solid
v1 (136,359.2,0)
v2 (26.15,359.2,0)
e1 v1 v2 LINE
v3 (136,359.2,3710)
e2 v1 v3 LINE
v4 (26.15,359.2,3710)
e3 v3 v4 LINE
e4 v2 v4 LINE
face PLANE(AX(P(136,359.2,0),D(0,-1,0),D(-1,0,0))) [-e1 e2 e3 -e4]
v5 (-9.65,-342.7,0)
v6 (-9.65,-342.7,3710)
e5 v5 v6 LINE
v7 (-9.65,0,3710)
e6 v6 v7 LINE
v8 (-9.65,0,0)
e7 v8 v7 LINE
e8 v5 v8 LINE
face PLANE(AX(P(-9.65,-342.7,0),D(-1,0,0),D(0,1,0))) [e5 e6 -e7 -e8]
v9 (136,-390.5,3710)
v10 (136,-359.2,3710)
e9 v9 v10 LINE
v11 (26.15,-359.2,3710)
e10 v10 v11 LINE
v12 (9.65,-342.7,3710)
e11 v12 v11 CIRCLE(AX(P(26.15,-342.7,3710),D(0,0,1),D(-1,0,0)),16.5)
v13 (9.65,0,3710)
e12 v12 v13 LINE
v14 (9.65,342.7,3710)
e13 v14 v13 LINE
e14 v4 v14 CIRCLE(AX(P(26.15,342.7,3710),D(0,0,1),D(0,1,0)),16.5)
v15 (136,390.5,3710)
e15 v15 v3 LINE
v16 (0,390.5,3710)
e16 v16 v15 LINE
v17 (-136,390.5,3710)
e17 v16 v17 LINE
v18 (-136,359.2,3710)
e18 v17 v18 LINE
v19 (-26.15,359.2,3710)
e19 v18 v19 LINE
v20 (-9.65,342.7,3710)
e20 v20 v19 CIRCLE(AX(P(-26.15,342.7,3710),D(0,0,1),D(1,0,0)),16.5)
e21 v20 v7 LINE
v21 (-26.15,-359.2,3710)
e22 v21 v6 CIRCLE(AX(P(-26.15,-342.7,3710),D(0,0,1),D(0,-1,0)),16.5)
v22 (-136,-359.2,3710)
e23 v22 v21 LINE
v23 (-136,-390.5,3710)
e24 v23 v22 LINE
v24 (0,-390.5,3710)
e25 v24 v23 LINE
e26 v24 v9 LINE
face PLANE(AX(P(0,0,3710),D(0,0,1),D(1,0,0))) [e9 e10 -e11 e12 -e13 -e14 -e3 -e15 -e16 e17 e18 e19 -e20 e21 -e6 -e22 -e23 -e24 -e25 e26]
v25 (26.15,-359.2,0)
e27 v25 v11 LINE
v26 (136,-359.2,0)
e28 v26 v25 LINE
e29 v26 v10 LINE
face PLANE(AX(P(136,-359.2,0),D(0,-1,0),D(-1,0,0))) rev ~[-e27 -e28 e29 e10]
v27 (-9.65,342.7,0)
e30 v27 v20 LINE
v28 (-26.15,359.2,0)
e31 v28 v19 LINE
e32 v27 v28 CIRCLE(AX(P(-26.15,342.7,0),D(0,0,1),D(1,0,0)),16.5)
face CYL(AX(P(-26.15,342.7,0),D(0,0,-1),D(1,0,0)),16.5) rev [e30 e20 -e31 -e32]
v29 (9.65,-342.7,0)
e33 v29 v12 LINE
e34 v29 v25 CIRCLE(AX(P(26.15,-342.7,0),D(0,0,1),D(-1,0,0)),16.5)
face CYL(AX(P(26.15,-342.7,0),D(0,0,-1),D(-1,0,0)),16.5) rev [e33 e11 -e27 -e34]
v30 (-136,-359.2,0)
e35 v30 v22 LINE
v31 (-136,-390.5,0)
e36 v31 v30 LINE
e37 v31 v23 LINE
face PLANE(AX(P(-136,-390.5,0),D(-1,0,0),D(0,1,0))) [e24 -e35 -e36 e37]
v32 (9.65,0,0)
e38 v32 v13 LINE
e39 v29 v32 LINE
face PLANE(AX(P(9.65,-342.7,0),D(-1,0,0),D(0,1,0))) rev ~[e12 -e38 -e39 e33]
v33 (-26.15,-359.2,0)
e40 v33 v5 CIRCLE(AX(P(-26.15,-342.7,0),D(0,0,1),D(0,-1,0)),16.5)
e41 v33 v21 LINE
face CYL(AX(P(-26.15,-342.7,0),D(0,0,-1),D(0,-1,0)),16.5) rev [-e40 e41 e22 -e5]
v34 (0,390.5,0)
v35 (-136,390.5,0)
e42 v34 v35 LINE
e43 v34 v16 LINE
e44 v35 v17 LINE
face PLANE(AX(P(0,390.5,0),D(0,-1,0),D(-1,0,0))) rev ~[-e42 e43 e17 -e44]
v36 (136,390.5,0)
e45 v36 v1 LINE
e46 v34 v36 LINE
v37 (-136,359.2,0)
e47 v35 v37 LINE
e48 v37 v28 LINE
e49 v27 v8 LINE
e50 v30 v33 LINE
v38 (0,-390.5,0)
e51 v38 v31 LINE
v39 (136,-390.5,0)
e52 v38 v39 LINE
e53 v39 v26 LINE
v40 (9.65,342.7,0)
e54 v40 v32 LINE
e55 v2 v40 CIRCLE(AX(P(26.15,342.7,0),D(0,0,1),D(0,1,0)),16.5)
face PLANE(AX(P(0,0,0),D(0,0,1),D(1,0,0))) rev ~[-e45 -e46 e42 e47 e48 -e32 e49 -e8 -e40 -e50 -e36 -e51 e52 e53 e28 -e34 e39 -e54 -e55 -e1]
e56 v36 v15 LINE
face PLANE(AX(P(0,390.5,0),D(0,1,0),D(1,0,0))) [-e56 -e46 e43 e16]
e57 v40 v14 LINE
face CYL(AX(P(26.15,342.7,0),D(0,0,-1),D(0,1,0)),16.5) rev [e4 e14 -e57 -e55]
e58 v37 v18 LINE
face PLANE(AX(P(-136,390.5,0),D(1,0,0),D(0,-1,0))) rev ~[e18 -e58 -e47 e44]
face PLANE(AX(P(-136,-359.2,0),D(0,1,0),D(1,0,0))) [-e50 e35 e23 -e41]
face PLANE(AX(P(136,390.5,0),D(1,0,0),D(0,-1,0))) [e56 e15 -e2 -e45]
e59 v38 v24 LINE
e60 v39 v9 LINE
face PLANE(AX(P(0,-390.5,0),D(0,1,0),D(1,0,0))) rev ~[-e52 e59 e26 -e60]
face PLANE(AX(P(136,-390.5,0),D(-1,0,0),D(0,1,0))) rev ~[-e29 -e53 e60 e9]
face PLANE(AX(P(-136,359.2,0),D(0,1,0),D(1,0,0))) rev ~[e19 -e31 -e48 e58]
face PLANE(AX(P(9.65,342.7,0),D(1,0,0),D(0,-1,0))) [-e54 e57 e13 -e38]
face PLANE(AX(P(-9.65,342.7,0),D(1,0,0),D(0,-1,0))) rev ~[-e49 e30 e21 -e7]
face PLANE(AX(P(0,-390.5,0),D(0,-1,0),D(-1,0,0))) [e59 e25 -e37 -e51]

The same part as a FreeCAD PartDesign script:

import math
import FreeCAD as App
import Part
import Sketcher
from FreeCAD import Vector
Q = App.Units.Quantity

doc = App.newDocument("Part")
body = doc.addObject("PartDesign::Body", "Body")

sketch1 = body.newObject("Sketcher::SketchObject", "Sketch")
sketch1.AttachmentSupport = (doc.getObject("XY_Plane"), [""])
sketch1.MapMode = "FlatFace"
sketch1.addGeometry(Part.LineSegment(Vector(-136, -359.2, 0), Vector(-136, -390.5, 0)), False)
sketch1.addGeometry(Part.LineSegment(Vector(-136, -390.5, 0), Vector(136, -390.5, 0)), False)
sketch1.addGeometry(Part.LineSegment(Vector(136, -390.5, 0), Vector(136, -359.2, 0)), False)
sketch1.addGeometry(Part.LineSegment(Vector(136, -359.2, 0), Vector(26.15, -359.2, 0)), False)
sketch1.addGeometry(Part.ArcOfCircle(Part.Circle(Vector(26.15, -342.7, 0), Vector(0, 0, 1), 16.5), math.radians(180), math.radians(270)), False)
sketch1.addGeometry(Part.LineSegment(Vector(9.65, -342.7, 0), Vector(9.65, 342.7, 0)), False)
sketch1.addGeometry(Part.ArcOfCircle(Part.Circle(Vector(26.15, 342.7, 0), Vector(0, 0, 1), 16.5), math.radians(90), math.radians(180)), False)
sketch1.addGeometry(Part.LineSegment(Vector(26.15, 359.2, 0), Vector(136, 359.2, 0)), False)
sketch1.addGeometry(Part.LineSegment(Vector(136, 359.2, 0), Vector(136, 390.5, 0)), False)
sketch1.addGeometry(Part.LineSegment(Vector(136, 390.5, 0), Vector(-136, 390.5, 0)), False)
sketch1.addGeometry(Part.LineSegment(Vector(-136, 390.5, 0), Vector(-136, 359.2, 0)), False)
sketch1.addGeometry(Part.LineSegment(Vector(-136, 359.2, 0), Vector(-26.15, 359.2, 0)), False)
sketch1.addGeometry(Part.ArcOfCircle(Part.Circle(Vector(-26.15, 342.7, 0), Vector(0, 0, 1), 16.5), math.radians(0), math.radians(90)), False)
sketch1.addGeometry(Part.LineSegment(Vector(-9.65, 342.7, 0), Vector(-9.65, -342.7, 0)), False)
sketch1.addGeometry(Part.ArcOfCircle(Part.Circle(Vector(-26.15, -342.7, 0), Vector(0, 0, 1), 16.5), math.radians(-90), math.radians(0)), False)
sketch1.addGeometry(Part.LineSegment(Vector(-26.15, -359.2, 0), Vector(-136, -359.2, 0)), False)
sketch1.addConstraint(Sketcher.Constraint("Coincident", 0, 2, 1, 1))
sketch1.addConstraint(Sketcher.Constraint("Coincident", 1, 2, 2, 1))
sketch1.addConstraint(Sketcher.Constraint("Coincident", 2, 2, 3, 1))
sketch1.addConstraint(Sketcher.Constraint("Tangent", 3, 2, 4, 2))
sketch1.addConstraint(Sketcher.Constraint("Tangent", 4, 1, 5, 1))
sketch1.addConstraint(Sketcher.Constraint("Tangent", 5, 2, 6, 2))
sketch1.addConstraint(Sketcher.Constraint("Tangent", 6, 1, 7, 1))
sketch1.addConstraint(Sketcher.Constraint("Coincident", 7, 2, 8, 1))
sketch1.addConstraint(Sketcher.Constraint("Coincident", 8, 2, 9, 1))
sketch1.addConstraint(Sketcher.Constraint("Coincident", 9, 2, 10, 1))
sketch1.addConstraint(Sketcher.Constraint("Coincident", 10, 2, 11, 1))
sketch1.addConstraint(Sketcher.Constraint("Tangent", 11, 2, 12, 2))
sketch1.addConstraint(Sketcher.Constraint("Tangent", 12, 1, 13, 1))
sketch1.addConstraint(Sketcher.Constraint("Tangent", 13, 2, 14, 2))
sketch1.addConstraint(Sketcher.Constraint("Tangent", 14, 1, 15, 1))
sketch1.addConstraint(Sketcher.Constraint("Coincident", 15, 2, 0, 1))
sketch1.addConstraint(Sketcher.Constraint("Vertical", 0))
sketch1.addConstraint(Sketcher.Constraint("Horizontal", 1))
sketch1.addConstraint(Sketcher.Constraint("Vertical", 2))
sketch1.addConstraint(Sketcher.Constraint("Horizontal", 3))
sketch1.addConstraint(Sketcher.Constraint("Vertical", 5))
sketch1.addConstraint(Sketcher.Constraint("Horizontal", 7))
sketch1.addConstraint(Sketcher.Constraint("Vertical", 8))
sketch1.addConstraint(Sketcher.Constraint("Horizontal", 9))
sketch1.addConstraint(Sketcher.Constraint("Vertical", 10))
sketch1.addConstraint(Sketcher.Constraint("Horizontal", 11))
sketch1.addConstraint(Sketcher.Constraint("Vertical", 13))
sketch1.addConstraint(Sketcher.Constraint("Horizontal", 15))
sketch1.addConstraint(Sketcher.Constraint("Equal", 4, 6))
sketch1.addConstraint(Sketcher.Constraint("Equal", 6, 12))
sketch1.addConstraint(Sketcher.Constraint("Equal", 12, 14))
sketch1.addConstraint(Sketcher.Constraint("Symmetric", 4, 3, 12, 3, -1, 1))
sketch1.addConstraint(Sketcher.Constraint("Symmetric", 0, 2, 8, 2, -1, 1))
sketch1.addConstraint(Sketcher.Constraint("Symmetric", 7, 2, 10, 2, -2))
sketch1.addConstraint(Sketcher.Constraint("Symmetric", 2, 2, 15, 2, -2))
sketch1.addConstraint(Sketcher.Constraint("Radius", 4, Q("16.5 mm")))
sketch1.addConstraint(Sketcher.Constraint("DistanceY", 0, 2, 0, 1, Q("31.3 mm")))
sketch1.addConstraint(Sketcher.Constraint("DistanceX", 0, 2, -1, 1, Q("136 mm")))
sketch1.addConstraint(Sketcher.Constraint("DistanceY", 0, 2, -1, 1, Q("390.5 mm")))
sketch1.addConstraint(Sketcher.Constraint("DistanceX", -1, 1, 4, 1, Q("9.65 mm")))
pad1 = body.newObject("PartDesign::Pad", "Pad")
pad1.Profile = sketch1
pad1.Length = 3710

doc.recompute()
